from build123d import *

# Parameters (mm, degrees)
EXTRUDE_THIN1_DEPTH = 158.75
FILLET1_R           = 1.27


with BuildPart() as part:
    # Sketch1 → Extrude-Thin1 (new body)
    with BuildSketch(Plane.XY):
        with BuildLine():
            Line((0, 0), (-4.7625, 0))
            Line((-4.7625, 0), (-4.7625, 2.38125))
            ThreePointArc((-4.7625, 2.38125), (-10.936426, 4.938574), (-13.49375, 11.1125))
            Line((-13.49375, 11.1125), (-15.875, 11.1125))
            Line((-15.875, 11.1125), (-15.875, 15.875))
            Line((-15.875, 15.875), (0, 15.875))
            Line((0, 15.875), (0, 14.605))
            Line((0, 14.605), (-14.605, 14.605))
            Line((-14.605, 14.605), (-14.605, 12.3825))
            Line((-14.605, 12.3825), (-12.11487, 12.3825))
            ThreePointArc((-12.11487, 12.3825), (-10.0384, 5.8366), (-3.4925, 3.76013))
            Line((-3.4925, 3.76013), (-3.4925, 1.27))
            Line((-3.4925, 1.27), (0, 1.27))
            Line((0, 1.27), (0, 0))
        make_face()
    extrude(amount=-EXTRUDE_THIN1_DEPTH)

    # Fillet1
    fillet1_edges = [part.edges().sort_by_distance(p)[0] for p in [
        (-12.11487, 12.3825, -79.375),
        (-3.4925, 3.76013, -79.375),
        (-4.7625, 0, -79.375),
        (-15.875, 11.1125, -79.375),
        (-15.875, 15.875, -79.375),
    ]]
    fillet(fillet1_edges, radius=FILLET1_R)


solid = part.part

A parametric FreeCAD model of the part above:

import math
import FreeCAD as App
import Part
import Sketcher
Q = App.Units.Quantity


def edges_at(feature, points):
    """Names of the edges that pass closest to the given points."""
    edges = feature.Shape.Edges
    near = lambda p: min(range(len(edges)), key=lambda i: edges[i].distToShape(Part.Vertex(*p))[0])
    return sorted({f"Edge{near(p) + 1}" for p in points})

doc = App.newDocument("Part")
body = doc.addObject("PartDesign::Body", "Body")

# Sketch on XY plane
sketch1 = body.newObject("Sketcher::SketchObject", "Sketch")
sketch1.AttachmentSupport = (doc.getObject("XY_Plane"), [""])
sketch1.MapMode = "FlatFace"
sketch1.addGeometry(Part.LineSegment(App.Vector(-4.8, 0, 0), App.Vector(0, 0, 0)), False)
sketch1.addGeometry(Part.LineSegment(App.Vector(0, 0, 0), App.Vector(0, 1.3, 0)), False)
sketch1.addGeometry(Part.LineSegment(App.Vector(0, 1.3, 0), App.Vector(-3.5, 1.3, 0)), False)
sketch1.addGeometry(Part.LineSegment(App.Vector(-3.5, 1.3, 0), App.Vector(-3.5, 3.8, 0)), False)
sketch1.addGeometry(Part.ArcOfCircle(Part.Circle(App.Vector(-4.8, 11.1, 0), App.Vector(0, 0, 1), 7.5), math.radians(170), math.radians(280)), False)
sketch1.addGeometry(Part.LineSegment(App.Vector(-12.1, 12.4, 0), App.Vector(-14.6, 12.4, 0)), False)
sketch1.addGeometry(Part.LineSegment(App.Vector(-14.6, 12.4, 0), App.Vector(-14.6, 14.6, 0)), False)
sketch1.addGeometry(Part.LineSegment(App.Vector(-14.6, 14.6, 0), App.Vector(0, 14.6, 0)), False)
sketch1.addGeometry(Part.LineSegment(App.Vector(0, 14.6, 0), App.Vector(0, 15.9, 0)), False)
sketch1.addGeometry(Part.LineSegment(App.Vector(0, 15.9, 0), App.Vector(-15.9, 15.9, 0)), False)
sketch1.addGeometry(Part.LineSegment(App.Vector(-15.9, 15.9, 0), App.Vector(-15.9, 11.1, 0)), False)
sketch1.addGeometry(Part.LineSegment(App.Vector(-15.9, 11.1, 0), App.Vector(-13.5, 11.1, 0)), False)
sketch1.addGeometry(Part.ArcOfCircle(Part.Circle(App.Vector(-4.8, 11.1, 0), App.Vector(0, 0, 1), 8.7), math.radians(-180), math.radians(-90)), False)
sketch1.addGeometry(Part.LineSegment(App.Vector(-4.8, 2.4, 0), App.Vector(-4.8, 0, 0)), False)
sketch1.addConstraint(Sketcher.Constraint("Coincident", 0, 2, 1, 1))
sketch1.addConstraint(Sketcher.Constraint("Coincident", 1, 2, 2, 1))
sketch1.addConstraint(Sketcher.Constraint("Coincident", 2, 2, 3, 1))
sketch1.addConstraint(Sketcher.Constraint("Coincident", 3, 2, 4, 2))
sketch1.addConstraint(Sketcher.Constraint("Coincident", 4, 1, 5, 1))
sketch1.addConstraint(Sketcher.Constraint("Coincident", 5, 2, 6, 1))
sketch1.addConstraint(Sketcher.Constraint("Coincident", 6, 2, 7, 1))
sketch1.addConstraint(Sketcher.Constraint("Coincident", 7, 2, 8, 1))
sketch1.addConstraint(Sketcher.Constraint("Coincident", 8, 2, 9, 1))
sketch1.addConstraint(Sketcher.Constraint("Coincident", 9, 2, 10, 1))
sketch1.addConstraint(Sketcher.Constraint("Coincident", 10, 2, 11, 1))
sketch1.addConstraint(Sketcher.Constraint("Coincident", 11, 2, 12, 1))
sketch1.addConstraint(Sketcher.Constraint("Coincident", 12, 2, 13, 1))
sketch1.addConstraint(Sketcher.Constraint("Coincident", 13, 2, 0, 1))
sketch1.addConstraint(Sketcher.Constraint("Horizontal", 0))
sketch1.addConstraint(Sketcher.Constraint("Vertical", 1))
sketch1.addConstraint(Sketcher.Constraint("Horizontal", 2))
sketch1.addConstraint(Sketcher.Constraint("Vertical", 3))
sketch1.addConstraint(Sketcher.Constraint("Horizontal", 5))
sketch1.addConstraint(Sketcher.Constraint("Vertical", 6))
sketch1.addConstraint(Sketcher.Constraint("Horizontal", 7))
sketch1.addConstraint(Sketcher.Constraint("Vertical", 8))
sketch1.addConstraint(Sketcher.Constraint("Horizontal", 9))
sketch1.addConstraint(Sketcher.Constraint("Vertical", 10))
sketch1.addConstraint(Sketcher.Constraint("Horizontal", 11))
sketch1.addConstraint(Sketcher.Constraint("Vertical", 13))
sketch1.addConstraint(Sketcher.Constraint("Coincident", 0, 2, -1, 1))
sketch1.addConstraint(Sketcher.Constraint("Coincident", 12, 3, 4, 3))
sketch1.addConstraint(Sketcher.Constraint("PointOnObject", 7, 2, -2))
sketch1.addConstraint(Sketcher.Constraint("Horizontal", 12, 3, 10, 2))
sketch1.addConstraint(Sketcher.Constraint("Vertical", 4, 3, 12, 2))
sketch1.addConstraint(Sketcher.Constraint("Equal", 5, 3))
sketch1.addConstraint(Sketcher.Constraint("Equal", 1, 8))
sketch1.addConstraint(Sketcher.Constraint("Equal", 0, 10))
sketch1.addConstraint(Sketcher.Constraint("Equal", 11, 13))
sketch1.addConstraint(Sketcher.Constraint("Radius", 12, Q("0.34375 in")))
sketch1.addConstraint(Sketcher.Constraint("DistanceY", 1, 1, 1, 2, Q("0.05 in")))
sketch1.addConstraint(Sketcher.Constraint("DistanceX", 0, 1, 0, 2, Q("0.1875 in")))
sketch1.addConstraint(Sketcher.Constraint("DistanceX", 7, 1, 7, 2, Q("0.575 in")))
sketch1.addConstraint(Sketcher.Constraint("DistanceX", 9, 2, 9, 1, Q("0.625 in")))
sketch1.addConstraint(Sketcher.Constraint("DistanceX", 12, 3, 2, 2, Q("0.05 in")))
sketch1.addConstraint(Sketcher.Constraint("Radius", 4, 7.46125))
pad1 = body.newObject("PartDesign::Pad", "Pad")
pad1.Profile = sketch1
pad1.Length = Q("6.25 in")
pad1.Reversed = True
doc.recompute()

fillet = body.newObject("PartDesign::Fillet", "Fillet")
fillet.Base = (pad1, edges_at(pad1, [
    (-12.115, 12.383, -79.375),
    (-3.493, 3.76, -79.375),
    (-4.763, 0, -79.375),
    (-15.875, 11.113, -79.375),
    (-15.875, 15.875, -79.375),
]))
fillet.Radius = Q("0.05 in")

doc.recompute()
